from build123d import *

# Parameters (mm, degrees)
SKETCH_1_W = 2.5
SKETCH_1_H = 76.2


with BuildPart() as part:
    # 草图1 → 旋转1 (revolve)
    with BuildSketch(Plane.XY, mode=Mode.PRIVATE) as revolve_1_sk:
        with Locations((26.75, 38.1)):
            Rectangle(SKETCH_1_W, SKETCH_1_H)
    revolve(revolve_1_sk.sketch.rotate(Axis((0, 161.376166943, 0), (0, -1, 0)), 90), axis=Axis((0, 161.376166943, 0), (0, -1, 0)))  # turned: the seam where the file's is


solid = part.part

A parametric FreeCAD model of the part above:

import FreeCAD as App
import Part
import Sketcher

V = App.Vector
Q = App.Units.Quantity


def add_polygon(sketch, points):
    """Adds a closed chain of lines whose ends are joined by coincident constraints."""
    first, n = sketch.GeometryCount, len(points)
    for a, b in zip(points, points[1:] + points[:1]):
        sketch.addGeometry(Part.LineSegment(App.Vector(*a, 0), App.Vector(*b, 0)), False)
    for i in range(n):
        sketch.addConstraint(Sketcher.Constraint("Coincident", first + i, 2, first + (i + 1) % n, 1))

doc = App.newDocument("Part")
params = doc.addObject("Spreadsheet::Sheet", "Params")
for row, (alias, value) in enumerate([
    ("sketch1_width", "2.5 mm"),
    ("sketch1_height", "76.2 mm"),
    ("revolution_angle", "360 deg"),
], start=1):
    params.set(f"A{row}", alias)
    params.set(f"B{row}", "=" + value)
    params.setAlias(f"B{row}", alias)

body = doc.addObject("PartDesign::Body", "Body")

sketch1 = body.newObject("Sketcher::SketchObject", "Sketch")
sketch1.AttachmentSupport = (doc.getObject("XY_Plane"), [""])
sketch1.MapMode = "FlatFace"
add_polygon(sketch1, [(25.5, 76.2), (25.5, 0), (28, 0), (28, 76.2)])
sketch1.addConstraint([
    Sketcher.Constraint("Vertical", 0),
    Sketcher.Constraint("Horizontal", 1),
    Sketcher.Constraint("Vertical", 2),
    Sketcher.Constraint("Horizontal", 3),
    Sketcher.Constraint("PointOnObject", 0, 2, -1),
    Sketcher.Constraint("DistanceX", 1, 1, 1, 2, Q("2.5 mm")),
    Sketcher.Constraint("DistanceY", 0, 2, 0, 1, Q("76.2 mm")),
    Sketcher.Constraint("DistanceX", -1, 1, 1, 2, Q("28 mm")),
])
sketch1.setExpression("Constraints[9]", "Params.sketch1_width")
sketch1.setExpression("Constraints[10]", "Params.sketch1_height")
revolution = body.newObject("PartDesign::Revolution", "Revolution")
revolution.Profile = sketch1
revolution.ReferenceAxis = (sketch1, ["V_Axis"])
revolution.setExpression("Angle", "Params.revolution_angle")

doc.recompute()
